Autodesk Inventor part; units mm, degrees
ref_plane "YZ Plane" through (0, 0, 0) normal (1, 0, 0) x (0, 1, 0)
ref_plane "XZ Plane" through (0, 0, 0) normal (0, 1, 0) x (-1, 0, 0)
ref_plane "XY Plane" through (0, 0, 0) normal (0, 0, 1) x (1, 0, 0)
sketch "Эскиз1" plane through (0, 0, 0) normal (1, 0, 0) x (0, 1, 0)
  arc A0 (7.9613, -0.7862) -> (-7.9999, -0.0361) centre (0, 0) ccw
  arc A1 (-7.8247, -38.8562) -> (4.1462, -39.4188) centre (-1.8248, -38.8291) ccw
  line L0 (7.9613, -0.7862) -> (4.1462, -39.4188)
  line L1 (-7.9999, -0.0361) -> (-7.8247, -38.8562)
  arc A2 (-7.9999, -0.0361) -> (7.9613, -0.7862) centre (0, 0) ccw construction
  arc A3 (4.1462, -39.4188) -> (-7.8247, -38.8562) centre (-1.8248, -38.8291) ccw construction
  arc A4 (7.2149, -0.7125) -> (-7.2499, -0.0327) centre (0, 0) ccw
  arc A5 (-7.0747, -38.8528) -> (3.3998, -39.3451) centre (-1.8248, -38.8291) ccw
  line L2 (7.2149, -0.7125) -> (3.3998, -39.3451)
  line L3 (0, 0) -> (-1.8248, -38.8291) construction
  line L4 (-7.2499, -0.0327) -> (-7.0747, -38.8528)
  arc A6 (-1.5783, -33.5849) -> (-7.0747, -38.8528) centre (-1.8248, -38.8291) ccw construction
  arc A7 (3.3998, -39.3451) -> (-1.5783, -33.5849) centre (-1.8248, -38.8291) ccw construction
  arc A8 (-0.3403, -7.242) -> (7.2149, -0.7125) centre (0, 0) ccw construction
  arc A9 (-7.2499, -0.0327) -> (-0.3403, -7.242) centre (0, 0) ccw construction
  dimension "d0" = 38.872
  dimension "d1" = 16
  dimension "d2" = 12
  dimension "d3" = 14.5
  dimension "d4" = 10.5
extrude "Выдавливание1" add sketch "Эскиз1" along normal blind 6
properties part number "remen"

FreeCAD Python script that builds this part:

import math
import FreeCAD as App
import Part
import Sketcher
Q = App.Units.Quantity

doc = App.newDocument("Part")
body = doc.addObject("PartDesign::Body", "Body")

# Sketch on YZ plane
sketch1 = doc.addObject("Sketcher::SketchObject", "Sketch")
body.addObject(sketch1)
sketch1.AttachmentSupport = (doc.YZ_Plane, [""])
sketch1.MapMode = "FlatFace"
sketch1.addGeometry(Part.LineSegment(App.Vector(4, -39, 0), App.Vector(8, -1, 0)), False)
sketch1.addGeometry(Part.ArcOfCircle(Part.Circle(App.Vector(0, 0, 0), App.Vector(0, 0, 1), 8), math.radians(-6), math.radians(180)), False)
sketch1.addGeometry(Part.LineSegment(App.Vector(-8, 0, 0), App.Vector(-8, -39, 0)), False)
sketch1.addGeometry(Part.ArcOfCircle(Part.Circle(App.Vector(-2, -39, 0), App.Vector(0, 0, 1), 6), math.radians(-180), math.radians(-6)), False)
sketch1.addGeometry(Part.ArcOfCircle(Part.Circle(App.Vector(0, 0, 0), App.Vector(0, 0, 1), 7), math.radians(-6), math.radians(180)), False)
sketch1.addGeometry(Part.LineSegment(App.Vector(7, -1, 0), App.Vector(3, -39, 0)), False)
sketch1.addGeometry(Part.ArcOfCircle(Part.Circle(App.Vector(-2, -39, 0), App.Vector(0, 0, 1), 5), math.radians(-180), math.radians(-6)), False)
sketch1.addGeometry(Part.LineSegment(App.Vector(-7, -39, 0), App.Vector(-7, 0, 0)), False)
sketch1.addConstraint(Sketcher.Constraint("Tangent", 0, 2, 1, 1))
sketch1.addConstraint(Sketcher.Constraint("Tangent", 1, 2, 2, 1))
sketch1.addConstraint(Sketcher.Constraint("Tangent", 2, 2, 3, 1))
sketch1.addConstraint(Sketcher.Constraint("Tangent", 3, 2, 0, 1))
sketch1.addConstraint(Sketcher.Constraint("Tangent", 4, 1, 5, 1))
sketch1.addConstraint(Sketcher.Constraint("Tangent", 5, 2, 6, 2))
sketch1.addConstraint(Sketcher.Constraint("Tangent", 6, 1, 7, 1))
sketch1.addConstraint(Sketcher.Constraint("Tangent", 7, 2, 4, 2))
sketch1.addConstraint(Sketcher.Constraint("Coincident", 1, 3, -1, 1))
sketch1.addConstraint(Sketcher.Constraint("Coincident", 4, 3, -1, 1))
sketch1.addConstraint(Sketcher.Constraint("Coincident", 6, 3, 3, 3))
sketch1.addConstraint(Sketcher.Constraint("Parallel", 0, 5))
sketch1.addConstraint(Sketcher.Constraint("Radius", 1, 8.0))
sketch1.addConstraint(Sketcher.Constraint("Radius", 3, 6.0))
sketch1.addConstraint(Sketcher.Constraint("Radius", 4, 7.25))
sketch1.addConstraint(Sketcher.Constraint("Angle", 0, Q("84.3601 deg")))
sketch1.addConstraint(Sketcher.Constraint("DistanceY", 2, 2, 1, 2, 38.82))
pad1 = doc.addObject("PartDesign::Pad", "Pad")
body.addObject(pad1)
pad1.Profile = sketch1
pad1.Length = 6

doc.recompute()
